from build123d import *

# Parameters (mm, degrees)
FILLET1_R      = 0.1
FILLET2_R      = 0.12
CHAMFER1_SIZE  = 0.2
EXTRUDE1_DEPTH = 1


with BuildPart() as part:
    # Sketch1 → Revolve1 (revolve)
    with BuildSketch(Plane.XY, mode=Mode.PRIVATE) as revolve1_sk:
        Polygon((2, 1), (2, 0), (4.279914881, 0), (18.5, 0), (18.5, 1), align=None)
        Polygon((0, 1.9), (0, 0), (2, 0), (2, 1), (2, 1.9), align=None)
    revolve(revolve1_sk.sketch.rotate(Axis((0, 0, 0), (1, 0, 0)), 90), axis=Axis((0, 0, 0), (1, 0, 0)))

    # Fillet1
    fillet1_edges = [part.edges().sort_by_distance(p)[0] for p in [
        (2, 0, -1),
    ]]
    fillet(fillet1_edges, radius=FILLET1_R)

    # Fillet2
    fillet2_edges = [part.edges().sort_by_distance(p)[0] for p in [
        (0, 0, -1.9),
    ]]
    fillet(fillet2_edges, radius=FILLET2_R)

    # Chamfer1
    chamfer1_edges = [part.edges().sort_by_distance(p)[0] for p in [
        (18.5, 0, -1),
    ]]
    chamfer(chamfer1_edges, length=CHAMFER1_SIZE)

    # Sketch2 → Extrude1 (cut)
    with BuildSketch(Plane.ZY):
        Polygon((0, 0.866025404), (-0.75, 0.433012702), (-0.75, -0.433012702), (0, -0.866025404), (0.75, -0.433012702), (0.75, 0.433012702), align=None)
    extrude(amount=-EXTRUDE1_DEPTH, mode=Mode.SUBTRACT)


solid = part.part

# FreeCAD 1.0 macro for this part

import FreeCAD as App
import Part
import Sketcher
from FreeCAD import Vector
Q = App.Units.Quantity


def edges_at(feature, points):
    """Names of the edges that pass closest to the given points."""
    edges = feature.Shape.Edges
    near = lambda p: min(range(len(edges)), key=lambda i: edges[i].distToShape(Part.Vertex(*p))[0])
    return sorted({f"Edge{near(p) + 1}" for p in points})

doc = App.newDocument("Part")
body = doc.addObject("PartDesign::Body", "Body")

# Sketch on XY plane
sketch1 = body.newObject("Sketcher::SketchObject", "Sketch")
sketch1.AttachmentSupport = (doc.getObject("XY_Plane"), [""])
sketch1.MapMode = "FlatFace"
sketch1.addGeometry([
    Part.LineSegment(Vector(18.5, 0, 0), Vector(18.5, 1, 0)),  # 0
    Part.LineSegment(Vector(18.5, 1, 0), Vector(2, 1, 0)),  # 1
    Part.LineSegment(Vector(2, 1, 0), Vector(2, 1.9, 0)),  # 2
    Part.LineSegment(Vector(2, 1.9, 0), Vector(0, 1.9, 0)),  # 3
    Part.LineSegment(Vector(0, 1.9, 0), Vector(0, 0, 0)),  # 4
    Part.LineSegment(Vector(0, 0, 0), Vector(18.5, 0, 0)),  # 5
], False)
sketch1.addConstraint([
    Sketcher.Constraint("Coincident", 0, 2, 1, 1),
    Sketcher.Constraint("Coincident", 1, 2, 2, 1),
    Sketcher.Constraint("Coincident", 2, 2, 3, 1),
    Sketcher.Constraint("Coincident", 3, 2, 4, 1),
    Sketcher.Constraint("Coincident", 4, 2, 5, 1),
    Sketcher.Constraint("Coincident", 5, 2, 0, 1),
    Sketcher.Constraint("Vertical", 0),
    Sketcher.Constraint("Horizontal", 1),
    Sketcher.Constraint("Vertical", 2),
    Sketcher.Constraint("Horizontal", 3),
    Sketcher.Constraint("Vertical", 4),
    Sketcher.Constraint("Horizontal", 5),
    Sketcher.Constraint("Coincident", 4, 2, -1, 1),
    Sketcher.Constraint("DistanceX", 3, 2, 3, 1, Q("2 mm")),
    Sketcher.Constraint("DistanceY", 0, 1, 0, 2, Q("1 mm")),
    Sketcher.Constraint("DistanceX", 1, 2, 1, 1, Q("16.5 mm")),
    Sketcher.Constraint("DistanceY", 2, 1, 2, 2, Q("0.9 mm")),
])
revolution = body.newObject("PartDesign::Revolution", "Revolution")
revolution.Profile = sketch1
revolution.ReferenceAxis = (sketch1, ["H_Axis"])
revolution.Angle = 360
doc.recompute()

fillet = body.newObject("PartDesign::Fillet", "Fillet")
fillet.Base = (revolution, edges_at(revolution, [(2, 0, -1)]))
fillet.Radius = 0.1
doc.recompute()

fillet2 = body.newObject("PartDesign::Fillet", "Fillet001")
fillet2.Base = (fillet, edges_at(fillet, [(0, 0, -1.9)]))
fillet2.Radius = 0.12
doc.recompute()

chamfer = body.newObject("PartDesign::Chamfer", "Chamfer")
chamfer.Base = (fillet2, edges_at(fillet2, [(18.5, 0, -1)]))
chamfer.Size = 0.2

# Sketch on YZ plane
sketch2 = body.newObject("Sketcher::SketchObject", "Sketch001")
sketch2.AttachmentSupport = (doc.getObject("YZ_Plane"), [""])
sketch2.MapMode = "FlatFace"
sketch2.addGeometry([
    Part.LineSegment(Vector(0.9, 0, 0), Vector(0.4, -0.8, 0)),  # 0
    Part.LineSegment(Vector(0.4, -0.8, 0), Vector(-0.4, -0.8, 0)),  # 1
    Part.LineSegment(Vector(-0.4, -0.8, 0), Vector(-0.9, 0, 0)),  # 2
    Part.LineSegment(Vector(-0.9, 0, 0), Vector(-0.4, 0.8, 0)),  # 3
    Part.LineSegment(Vector(-0.4, 0.8, 0), Vector(0.4, 0.8, 0)),  # 4
    Part.LineSegment(Vector(0.4, 0.8, 0), Vector(0.9, 0, 0)),  # 5
], False)
sketch2.addConstraint([
    Sketcher.Constraint("Coincident", 0, 2, 1, 1),
    Sketcher.Constraint("Coincident", 1, 2, 2, 1),
    Sketcher.Constraint("Coincident", 2, 2, 3, 1),
    Sketcher.Constraint("Coincident", 3, 2, 4, 1),
    Sketcher.Constraint("Coincident", 4, 2, 5, 1),
    Sketcher.Constraint("Coincident", 5, 2, 0, 1),
    Sketcher.Constraint("Horizontal", 1),
    Sketcher.Constraint("Horizontal", 4),
    Sketcher.Constraint("Symmetric", 0, 2, 3, 2, -1, 1),
    Sketcher.Constraint("Symmetric", 2, 2, 5, 2, -1, 1),
    Sketcher.Constraint("PointOnObject", 2, 2, -1),
    Sketcher.Constraint("Parallel", 2, 5),
    Sketcher.Constraint("Vertical", 1, 2, 3, 2),
    Sketcher.Constraint("Angle", 0, Q("-120 deg")),
    Sketcher.Constraint("DistanceY", 1, 2, 3, 2, Q("1.5 mm")),
    Sketcher.Constraint("DistanceX", 1, 2, 1, 1, Q("0.866025 mm")),
])
pocket1 = body.newObject("PartDesign::Pocket", "Pocket")
pocket1.Profile = sketch2
pocket1.Length = 1
pocket1.Reversed = True

doc.recompute()
